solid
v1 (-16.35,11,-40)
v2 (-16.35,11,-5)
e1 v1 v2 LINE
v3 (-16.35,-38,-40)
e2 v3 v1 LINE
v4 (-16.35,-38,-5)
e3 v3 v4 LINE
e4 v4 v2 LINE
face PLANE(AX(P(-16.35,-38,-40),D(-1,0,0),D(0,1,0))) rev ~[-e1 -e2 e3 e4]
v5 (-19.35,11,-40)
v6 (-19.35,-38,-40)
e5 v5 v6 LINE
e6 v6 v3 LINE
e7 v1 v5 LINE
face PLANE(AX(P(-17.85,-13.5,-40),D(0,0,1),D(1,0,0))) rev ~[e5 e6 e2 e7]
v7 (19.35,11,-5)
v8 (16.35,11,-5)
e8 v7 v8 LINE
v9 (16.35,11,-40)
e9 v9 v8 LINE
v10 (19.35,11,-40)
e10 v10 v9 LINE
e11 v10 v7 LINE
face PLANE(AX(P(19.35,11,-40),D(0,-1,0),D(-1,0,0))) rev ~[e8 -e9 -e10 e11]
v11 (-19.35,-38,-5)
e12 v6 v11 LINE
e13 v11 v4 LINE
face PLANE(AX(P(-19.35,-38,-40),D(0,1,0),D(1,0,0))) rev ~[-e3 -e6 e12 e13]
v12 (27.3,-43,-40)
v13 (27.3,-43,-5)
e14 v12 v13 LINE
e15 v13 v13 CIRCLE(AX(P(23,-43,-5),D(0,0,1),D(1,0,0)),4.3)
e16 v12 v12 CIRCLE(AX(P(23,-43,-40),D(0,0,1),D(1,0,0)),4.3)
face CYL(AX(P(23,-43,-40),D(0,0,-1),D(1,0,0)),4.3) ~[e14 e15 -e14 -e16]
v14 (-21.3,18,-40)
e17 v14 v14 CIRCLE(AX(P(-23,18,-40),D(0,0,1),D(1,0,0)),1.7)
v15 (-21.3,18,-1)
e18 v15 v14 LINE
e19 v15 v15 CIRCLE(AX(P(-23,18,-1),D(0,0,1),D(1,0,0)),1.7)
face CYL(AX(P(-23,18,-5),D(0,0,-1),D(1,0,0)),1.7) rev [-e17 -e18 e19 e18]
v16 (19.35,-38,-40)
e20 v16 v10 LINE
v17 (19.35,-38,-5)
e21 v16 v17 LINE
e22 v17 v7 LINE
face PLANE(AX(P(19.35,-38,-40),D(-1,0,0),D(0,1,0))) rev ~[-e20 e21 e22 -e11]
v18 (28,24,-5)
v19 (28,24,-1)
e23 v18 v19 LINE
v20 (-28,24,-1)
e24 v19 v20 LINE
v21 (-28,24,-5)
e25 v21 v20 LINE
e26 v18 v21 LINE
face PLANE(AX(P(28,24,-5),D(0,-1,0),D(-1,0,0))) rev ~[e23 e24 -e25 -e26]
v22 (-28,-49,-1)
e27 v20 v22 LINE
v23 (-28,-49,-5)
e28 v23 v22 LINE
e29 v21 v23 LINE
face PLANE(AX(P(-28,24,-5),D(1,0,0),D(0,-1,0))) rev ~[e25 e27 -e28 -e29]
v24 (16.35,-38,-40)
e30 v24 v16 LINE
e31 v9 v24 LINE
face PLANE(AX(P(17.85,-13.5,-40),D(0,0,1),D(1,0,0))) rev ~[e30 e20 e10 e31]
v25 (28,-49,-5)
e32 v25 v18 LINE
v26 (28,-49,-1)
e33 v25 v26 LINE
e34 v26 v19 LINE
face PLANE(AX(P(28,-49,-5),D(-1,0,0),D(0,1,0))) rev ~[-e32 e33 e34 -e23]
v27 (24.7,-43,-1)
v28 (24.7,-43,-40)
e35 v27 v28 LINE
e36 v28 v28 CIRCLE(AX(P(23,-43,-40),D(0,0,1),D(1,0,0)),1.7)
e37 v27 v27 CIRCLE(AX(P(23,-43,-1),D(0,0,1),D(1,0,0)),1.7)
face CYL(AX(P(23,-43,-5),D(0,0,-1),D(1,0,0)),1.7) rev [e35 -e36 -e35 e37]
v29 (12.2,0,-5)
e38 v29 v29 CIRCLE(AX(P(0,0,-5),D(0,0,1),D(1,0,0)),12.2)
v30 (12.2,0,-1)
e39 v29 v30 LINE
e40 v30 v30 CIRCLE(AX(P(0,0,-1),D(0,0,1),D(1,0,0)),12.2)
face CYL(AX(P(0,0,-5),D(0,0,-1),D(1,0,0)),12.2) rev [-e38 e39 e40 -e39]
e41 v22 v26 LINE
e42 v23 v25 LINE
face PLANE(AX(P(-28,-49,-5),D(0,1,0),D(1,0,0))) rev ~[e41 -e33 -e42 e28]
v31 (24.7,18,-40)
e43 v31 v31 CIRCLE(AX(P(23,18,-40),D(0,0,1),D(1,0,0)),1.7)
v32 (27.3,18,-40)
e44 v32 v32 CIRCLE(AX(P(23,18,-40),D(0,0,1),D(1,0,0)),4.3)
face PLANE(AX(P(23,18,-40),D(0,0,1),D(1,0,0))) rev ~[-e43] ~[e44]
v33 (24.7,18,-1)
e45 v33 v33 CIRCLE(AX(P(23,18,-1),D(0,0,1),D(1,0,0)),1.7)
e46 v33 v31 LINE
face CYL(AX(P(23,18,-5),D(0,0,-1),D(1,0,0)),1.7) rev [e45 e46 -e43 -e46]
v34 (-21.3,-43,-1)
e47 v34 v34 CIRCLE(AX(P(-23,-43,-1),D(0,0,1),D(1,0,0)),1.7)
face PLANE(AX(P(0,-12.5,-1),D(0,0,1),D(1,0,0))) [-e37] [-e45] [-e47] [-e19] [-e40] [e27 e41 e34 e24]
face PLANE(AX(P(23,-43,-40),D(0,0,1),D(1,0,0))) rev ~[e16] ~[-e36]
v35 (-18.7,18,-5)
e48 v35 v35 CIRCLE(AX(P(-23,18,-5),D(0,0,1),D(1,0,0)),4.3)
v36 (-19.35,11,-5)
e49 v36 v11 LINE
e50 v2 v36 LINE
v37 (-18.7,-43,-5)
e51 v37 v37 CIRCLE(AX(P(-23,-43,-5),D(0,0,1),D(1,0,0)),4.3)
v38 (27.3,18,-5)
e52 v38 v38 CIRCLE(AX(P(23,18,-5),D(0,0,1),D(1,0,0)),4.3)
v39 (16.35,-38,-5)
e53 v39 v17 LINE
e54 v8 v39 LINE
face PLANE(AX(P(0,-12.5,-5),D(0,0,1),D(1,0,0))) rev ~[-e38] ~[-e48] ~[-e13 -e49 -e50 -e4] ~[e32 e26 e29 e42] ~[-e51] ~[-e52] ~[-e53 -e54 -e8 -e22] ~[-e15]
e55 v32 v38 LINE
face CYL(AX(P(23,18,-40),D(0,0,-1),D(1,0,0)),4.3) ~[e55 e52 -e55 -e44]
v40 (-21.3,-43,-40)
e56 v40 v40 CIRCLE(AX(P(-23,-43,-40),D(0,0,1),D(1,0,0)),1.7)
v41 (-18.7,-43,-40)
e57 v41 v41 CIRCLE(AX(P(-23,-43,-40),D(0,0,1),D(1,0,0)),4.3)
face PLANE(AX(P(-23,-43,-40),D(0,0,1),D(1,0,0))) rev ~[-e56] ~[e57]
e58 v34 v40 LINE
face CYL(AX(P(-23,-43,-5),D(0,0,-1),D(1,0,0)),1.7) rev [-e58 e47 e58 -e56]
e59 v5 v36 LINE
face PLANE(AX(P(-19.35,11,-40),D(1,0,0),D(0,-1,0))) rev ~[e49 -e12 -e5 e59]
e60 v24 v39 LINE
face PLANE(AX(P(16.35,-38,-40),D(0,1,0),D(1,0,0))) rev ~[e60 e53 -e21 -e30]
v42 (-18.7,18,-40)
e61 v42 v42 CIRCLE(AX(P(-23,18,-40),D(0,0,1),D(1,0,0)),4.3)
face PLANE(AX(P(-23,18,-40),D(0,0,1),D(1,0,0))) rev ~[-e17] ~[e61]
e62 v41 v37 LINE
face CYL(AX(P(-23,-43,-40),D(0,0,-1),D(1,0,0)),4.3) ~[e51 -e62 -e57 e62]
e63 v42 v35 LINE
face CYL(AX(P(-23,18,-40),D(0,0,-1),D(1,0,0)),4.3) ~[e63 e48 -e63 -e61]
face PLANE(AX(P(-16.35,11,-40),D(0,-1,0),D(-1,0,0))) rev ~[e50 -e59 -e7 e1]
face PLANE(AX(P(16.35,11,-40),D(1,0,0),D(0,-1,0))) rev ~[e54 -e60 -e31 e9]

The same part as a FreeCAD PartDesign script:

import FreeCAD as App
import Part
import Sketcher
Q = App.Units.Quantity

doc = App.newDocument("Part")
body = doc.addObject("PartDesign::Body", "Body")

# Sketch on XY plane
sketch1 = body.newObject("Sketcher::SketchObject", "Sketch")
sketch1.AttachmentSupport = (doc.getObject("XY_Plane"), [""])
sketch1.MapMode = "FlatFace"
sketch1.AttachmentOffset = App.Placement(App.Vector(0, 0, -5), App.Rotation())
sketch1.addGeometry(Part.LineSegment(App.Vector(-28, 24, 0), App.Vector(-28, -49, 0)), False)
sketch1.addGeometry(Part.LineSegment(App.Vector(-28, -49, 0), App.Vector(28, -49, 0)), False)
sketch1.addGeometry(Part.LineSegment(App.Vector(28, -49, 0), App.Vector(28, 24, 0)), False)
sketch1.addGeometry(Part.LineSegment(App.Vector(28, 24, 0), App.Vector(-28, 24, 0)), False)
sketch1.addGeometry(Part.Circle(App.Vector(-23, -43, 0), App.Vector(0, 0, 1), 1.7), False)
sketch1.addGeometry(Part.Circle(App.Vector(23, -43, 0), App.Vector(0, 0, 1), 1.7), False)
sketch1.addGeometry(Part.Circle(App.Vector(-23, 18, 0), App.Vector(0, 0, 1), 1.7), False)
sketch1.addGeometry(Part.Circle(App.Vector(0, 0, 0), App.Vector(0, 0, 1), 12.2), False)
sketch1.addGeometry(Part.Circle(App.Vector(23, 18, 0), App.Vector(0, 0, 1), 1.7), False)
sketch1.addConstraint(Sketcher.Constraint("Coincident", 0, 2, 1, 1))
sketch1.addConstraint(Sketcher.Constraint("Coincident", 1, 2, 2, 1))
sketch1.addConstraint(Sketcher.Constraint("Coincident", 2, 2, 3, 1))
sketch1.addConstraint(Sketcher.Constraint("Coincident", 3, 2, 0, 1))
sketch1.addConstraint(Sketcher.Constraint("Vertical", 0))
sketch1.addConstraint(Sketcher.Constraint("Horizontal", 1))
sketch1.addConstraint(Sketcher.Constraint("Vertical", 2))
sketch1.addConstraint(Sketcher.Constraint("Horizontal", 3))
sketch1.addConstraint(Sketcher.Constraint("Coincident", 7, 3, -1, 1))
sketch1.addConstraint(Sketcher.Constraint("Equal", 4, 5))
sketch1.addConstraint(Sketcher.Constraint("Equal", 5, 6))
sketch1.addConstraint(Sketcher.Constraint("Equal", 6, 8))
sketch1.addConstraint(Sketcher.Constraint("Symmetric", 4, 3, 5, 3, -2))
sketch1.addConstraint(Sketcher.Constraint("Symmetric", 6, 3, 8, 3, -2))
sketch1.addConstraint(Sketcher.Constraint("Vertical", 4, 3, 6, 3))
sketch1.addConstraint(Sketcher.Constraint("Diameter", 4, Q("3.4 mm")))
sketch1.addConstraint(Sketcher.Constraint("Diameter", 7, Q("24.4 mm")))
sketch1.addConstraint(Sketcher.Constraint("DistanceX", 1, 1, 1, 2, Q("56 mm")))
sketch1.addConstraint(Sketcher.Constraint("DistanceY", 0, 2, 0, 1, Q("73 mm")))
sketch1.addConstraint(Sketcher.Constraint("DistanceX", 4, 3, -1, 1, Q("23 mm")))
sketch1.addConstraint(Sketcher.Constraint("DistanceY", 4, 3, -1, 1, Q("43 mm")))
sketch1.addConstraint(Sketcher.Constraint("DistanceY", -1, 1, 6, 3, Q("18 mm")))
sketch1.addConstraint(Sketcher.Constraint("DistanceX", 0, 2, -1, 1, Q("28 mm")))
sketch1.addConstraint(Sketcher.Constraint("DistanceY", 0, 2, -1, 1, Q("49 mm")))
pad1 = body.newObject("PartDesign::Pad", "Pad")
pad1.Profile = sketch1
pad1.Length = 4

# Sketch on XY plane
sketch2 = body.newObject("Sketcher::SketchObject", "Sketch001")
sketch2.AttachmentSupport = (doc.getObject("XY_Plane"), [""])
sketch2.MapMode = "FlatFace"
sketch2.AttachmentOffset = App.Placement(App.Vector(0, 0, -40), App.Rotation())
sketch2.addGeometry(Part.Circle(App.Vector(-23, -43, 0), App.Vector(0, 0, 1), 4.3), False)
sketch2.addGeometry(Part.Circle(App.Vector(-23, -43, 0), App.Vector(0, 0, 1), 1.7), False)
sketch2.addConstraint(Sketcher.Constraint("Coincident", 1, 3, 0, 3))
sketch2.addConstraint(Sketcher.Constraint("Diameter", 0, Q("8.6 mm")))
sketch2.addConstraint(Sketcher.Constraint("Diameter", 1, Q("3.4 mm")))
sketch2.addConstraint(Sketcher.Constraint("DistanceX", 0, 3, -1, 1, Q("23 mm")))
sketch2.addConstraint(Sketcher.Constraint("DistanceY", 0, 3, -1, 1, Q("43 mm")))
pad2 = body.newObject("PartDesign::Pad", "Pad001")
pad2.Profile = sketch2
pad2.Length = 35

# Sketch on XY plane
sketch3 = body.newObject("Sketcher::SketchObject", "Sketch002")
sketch3.AttachmentSupport = (doc.getObject("XY_Plane"), [""])
sketch3.MapMode = "FlatFace"
sketch3.AttachmentOffset = App.Placement(App.Vector(0, 0, -40), App.Rotation())
sketch3.addGeometry(Part.Circle(App.Vector(23, -43, 0), App.Vector(0, 0, 1), 4.3), False)
sketch3.addGeometry(Part.Circle(App.Vector(23, -43, 0), App.Vector(0, 0, 1), 1.7), False)
sketch3.addConstraint(Sketcher.Constraint("Coincident", 1, 3, 0, 3))
sketch3.addConstraint(Sketcher.Constraint("Diameter", 0, Q("8.6 mm")))
sketch3.addConstraint(Sketcher.Constraint("Diameter", 1, Q("3.4 mm")))
sketch3.addConstraint(Sketcher.Constraint("DistanceX", -1, 1, 0, 3, Q("23 mm")))
sketch3.addConstraint(Sketcher.Constraint("DistanceY", 0, 3, -1, 1, Q("43 mm")))
pad3 = body.newObject("PartDesign::Pad", "Pad002")
pad3.Profile = sketch3
pad3.Length = 35

# Sketch on XY plane
sketch4 = body.newObject("Sketcher::SketchObject", "Sketch003")
sketch4.AttachmentSupport = (doc.getObject("XY_Plane"), [""])
sketch4.MapMode = "FlatFace"
sketch4.AttachmentOffset = App.Placement(App.Vector(0, 0, -40), App.Rotation())
sketch4.addGeometry(Part.Circle(App.Vector(-23, 18, 0), App.Vector(0, 0, 1), 4.3), False)
sketch4.addGeometry(Part.Circle(App.Vector(-23, 18, 0), App.Vector(0, 0, 1), 1.7), False)
sketch4.addConstraint(Sketcher.Constraint("Coincident", 1, 3, 0, 3))
sketch4.addConstraint(Sketcher.Constraint("Diameter", 0, Q("8.6 mm")))
sketch4.addConstraint(Sketcher.Constraint("Diameter", 1, Q("3.4 mm")))
sketch4.addConstraint(Sketcher.Constraint("DistanceX", 0, 3, -1, 1, Q("23 mm")))
sketch4.addConstraint(Sketcher.Constraint("DistanceY", -1, 1, 0, 3, Q("18 mm")))
pad4 = body.newObject("PartDesign::Pad", "Pad003")
pad4.Profile = sketch4
pad4.Length = 35

# Sketch on XY plane
sketch5 = body.newObject("Sketcher::SketchObject", "Sketch004")
sketch5.AttachmentSupport = (doc.getObject("XY_Plane"), [""])
sketch5.MapMode = "FlatFace"
sketch5.AttachmentOffset = App.Placement(App.Vector(0, 0, -40), App.Rotation())
sketch5.addGeometry(Part.Circle(App.Vector(23, 18, 0), App.Vector(0, 0, 1), 4.3), False)
sketch5.addGeometry(Part.Circle(App.Vector(23, 18, 0), App.Vector(0, 0, 1), 1.7), False)
sketch5.addConstraint(Sketcher.Constraint("Coincident", 1, 3, 0, 3))
sketch5.addConstraint(Sketcher.Constraint("Diameter", 0, Q("8.6 mm")))
sketch5.addConstraint(Sketcher.Constraint("Diameter", 1, Q("3.4 mm")))
sketch5.addConstraint(Sketcher.Constraint("DistanceX", -1, 1, 0, 3, Q("23 mm")))
sketch5.addConstraint(Sketcher.Constraint("DistanceY", -1, 1, 0, 3, Q("18 mm")))
pad5 = body.newObject("PartDesign::Pad", "Pad004")
pad5.Profile = sketch5
pad5.Length = 35

# Sketch on XY plane
sketch6 = body.newObject("Sketcher::SketchObject", "Sketch005")
sketch6.AttachmentSupport = (doc.getObject("XY_Plane"), [""])
sketch6.MapMode = "FlatFace"
sketch6.AttachmentOffset = App.Placement(App.Vector(0, 0, -40), App.Rotation())
sketch6.addGeometry(Part.LineSegment(App.Vector(-19.35, 11, 0), App.Vector(-19.35, -38, 0)), False)
sketch6.addGeometry(Part.LineSegment(App.Vector(-19.35, -38, 0), App.Vector(-16.35, -38, 0)), False)
sketch6.addGeometry(Part.LineSegment(App.Vector(-16.35, -38, 0), App.Vector(-16.35, 11, 0)), False)
sketch6.addGeometry(Part.LineSegment(App.Vector(-16.35, 11, 0), App.Vector(-19.35, 11, 0)), False)
sketch6.addConstraint(Sketcher.Constraint("Coincident", 0, 2, 1, 1))
sketch6.addConstraint(Sketcher.Constraint("Coincident", 1, 2, 2, 1))
sketch6.addConstraint(Sketcher.Constraint("Coincident", 2, 2, 3, 1))
sketch6.addConstraint(Sketcher.Constraint("Coincident", 3, 2, 0, 1))
sketch6.addConstraint(Sketcher.Constraint("Vertical", 0))
sketch6.addConstraint(Sketcher.Constraint("Horizontal", 1))
sketch6.addConstraint(Sketcher.Constraint("Vertical", 2))
sketch6.addConstraint(Sketcher.Constraint("Horizontal", 3))
sketch6.addConstraint(Sketcher.Constraint("DistanceX", 1, 1, 1, 2, Q("3 mm")))
sketch6.addConstraint(Sketcher.Constraint("DistanceY", 0, 2, 0, 1, Q("49 mm")))
sketch6.addConstraint(Sketcher.Constraint("DistanceY", 0, 2, -1, 1, Q("38 mm")))
sketch6.addConstraint(Sketcher.Constraint("DistanceX", 0, 2, -1, 1, Q("19.35 mm")))
pad6 = body.newObject("PartDesign::Pad", "Pad005")
pad6.Profile = sketch6
pad6.Length = 35

# Sketch on XY plane
sketch7 = body.newObject("Sketcher::SketchObject", "Sketch006")
sketch7.AttachmentSupport = (doc.getObject("XY_Plane"), [""])
sketch7.MapMode = "FlatFace"
sketch7.AttachmentOffset = App.Placement(App.Vector(0, 0, -40), App.Rotation())
sketch7.addGeometry(Part.LineSegment(App.Vector(16.35, 11, 0), App.Vector(16.35, -38, 0)), False)
sketch7.addGeometry(Part.LineSegment(App.Vector(16.35, -38, 0), App.Vector(19.35, -38, 0)), False)
sketch7.addGeometry(Part.LineSegment(App.Vector(19.35, -38, 0), App.Vector(19.35, 11, 0)), False)
sketch7.addGeometry(Part.LineSegment(App.Vector(19.35, 11, 0), App.Vector(16.35, 11, 0)), False)
sketch7.addConstraint(Sketcher.Constraint("Coincident", 0, 2, 1, 1))
sketch7.addConstraint(Sketcher.Constraint("Coincident", 1, 2, 2, 1))
sketch7.addConstraint(Sketcher.Constraint("Coincident", 2, 2, 3, 1))
sketch7.addConstraint(Sketcher.Constraint("Coincident", 3, 2, 0, 1))
sketch7.addConstraint(Sketcher.Constraint("Vertical", 0))
sketch7.addConstraint(Sketcher.Constraint("Horizontal", 1))
sketch7.addConstraint(Sketcher.Constraint("Vertical", 2))
sketch7.addConstraint(Sketcher.Constraint("Horizontal", 3))
sketch7.addConstraint(Sketcher.Constraint("DistanceX", 1, 1, 1, 2, Q("3 mm")))
sketch7.addConstraint(Sketcher.Constraint("DistanceY", 0, 2, 0, 1, Q("49 mm")))
sketch7.addConstraint(Sketcher.Constraint("DistanceY", 0, 2, -1, 1, Q("38 mm")))
sketch7.addConstraint(Sketcher.Constraint("DistanceX", -1, 1, 0, 2, Q("16.35 mm")))
pad7 = body.newObject("PartDesign::Pad", "Pad006")
pad7.Profile = sketch7
pad7.Length = 35

doc.recompute()
